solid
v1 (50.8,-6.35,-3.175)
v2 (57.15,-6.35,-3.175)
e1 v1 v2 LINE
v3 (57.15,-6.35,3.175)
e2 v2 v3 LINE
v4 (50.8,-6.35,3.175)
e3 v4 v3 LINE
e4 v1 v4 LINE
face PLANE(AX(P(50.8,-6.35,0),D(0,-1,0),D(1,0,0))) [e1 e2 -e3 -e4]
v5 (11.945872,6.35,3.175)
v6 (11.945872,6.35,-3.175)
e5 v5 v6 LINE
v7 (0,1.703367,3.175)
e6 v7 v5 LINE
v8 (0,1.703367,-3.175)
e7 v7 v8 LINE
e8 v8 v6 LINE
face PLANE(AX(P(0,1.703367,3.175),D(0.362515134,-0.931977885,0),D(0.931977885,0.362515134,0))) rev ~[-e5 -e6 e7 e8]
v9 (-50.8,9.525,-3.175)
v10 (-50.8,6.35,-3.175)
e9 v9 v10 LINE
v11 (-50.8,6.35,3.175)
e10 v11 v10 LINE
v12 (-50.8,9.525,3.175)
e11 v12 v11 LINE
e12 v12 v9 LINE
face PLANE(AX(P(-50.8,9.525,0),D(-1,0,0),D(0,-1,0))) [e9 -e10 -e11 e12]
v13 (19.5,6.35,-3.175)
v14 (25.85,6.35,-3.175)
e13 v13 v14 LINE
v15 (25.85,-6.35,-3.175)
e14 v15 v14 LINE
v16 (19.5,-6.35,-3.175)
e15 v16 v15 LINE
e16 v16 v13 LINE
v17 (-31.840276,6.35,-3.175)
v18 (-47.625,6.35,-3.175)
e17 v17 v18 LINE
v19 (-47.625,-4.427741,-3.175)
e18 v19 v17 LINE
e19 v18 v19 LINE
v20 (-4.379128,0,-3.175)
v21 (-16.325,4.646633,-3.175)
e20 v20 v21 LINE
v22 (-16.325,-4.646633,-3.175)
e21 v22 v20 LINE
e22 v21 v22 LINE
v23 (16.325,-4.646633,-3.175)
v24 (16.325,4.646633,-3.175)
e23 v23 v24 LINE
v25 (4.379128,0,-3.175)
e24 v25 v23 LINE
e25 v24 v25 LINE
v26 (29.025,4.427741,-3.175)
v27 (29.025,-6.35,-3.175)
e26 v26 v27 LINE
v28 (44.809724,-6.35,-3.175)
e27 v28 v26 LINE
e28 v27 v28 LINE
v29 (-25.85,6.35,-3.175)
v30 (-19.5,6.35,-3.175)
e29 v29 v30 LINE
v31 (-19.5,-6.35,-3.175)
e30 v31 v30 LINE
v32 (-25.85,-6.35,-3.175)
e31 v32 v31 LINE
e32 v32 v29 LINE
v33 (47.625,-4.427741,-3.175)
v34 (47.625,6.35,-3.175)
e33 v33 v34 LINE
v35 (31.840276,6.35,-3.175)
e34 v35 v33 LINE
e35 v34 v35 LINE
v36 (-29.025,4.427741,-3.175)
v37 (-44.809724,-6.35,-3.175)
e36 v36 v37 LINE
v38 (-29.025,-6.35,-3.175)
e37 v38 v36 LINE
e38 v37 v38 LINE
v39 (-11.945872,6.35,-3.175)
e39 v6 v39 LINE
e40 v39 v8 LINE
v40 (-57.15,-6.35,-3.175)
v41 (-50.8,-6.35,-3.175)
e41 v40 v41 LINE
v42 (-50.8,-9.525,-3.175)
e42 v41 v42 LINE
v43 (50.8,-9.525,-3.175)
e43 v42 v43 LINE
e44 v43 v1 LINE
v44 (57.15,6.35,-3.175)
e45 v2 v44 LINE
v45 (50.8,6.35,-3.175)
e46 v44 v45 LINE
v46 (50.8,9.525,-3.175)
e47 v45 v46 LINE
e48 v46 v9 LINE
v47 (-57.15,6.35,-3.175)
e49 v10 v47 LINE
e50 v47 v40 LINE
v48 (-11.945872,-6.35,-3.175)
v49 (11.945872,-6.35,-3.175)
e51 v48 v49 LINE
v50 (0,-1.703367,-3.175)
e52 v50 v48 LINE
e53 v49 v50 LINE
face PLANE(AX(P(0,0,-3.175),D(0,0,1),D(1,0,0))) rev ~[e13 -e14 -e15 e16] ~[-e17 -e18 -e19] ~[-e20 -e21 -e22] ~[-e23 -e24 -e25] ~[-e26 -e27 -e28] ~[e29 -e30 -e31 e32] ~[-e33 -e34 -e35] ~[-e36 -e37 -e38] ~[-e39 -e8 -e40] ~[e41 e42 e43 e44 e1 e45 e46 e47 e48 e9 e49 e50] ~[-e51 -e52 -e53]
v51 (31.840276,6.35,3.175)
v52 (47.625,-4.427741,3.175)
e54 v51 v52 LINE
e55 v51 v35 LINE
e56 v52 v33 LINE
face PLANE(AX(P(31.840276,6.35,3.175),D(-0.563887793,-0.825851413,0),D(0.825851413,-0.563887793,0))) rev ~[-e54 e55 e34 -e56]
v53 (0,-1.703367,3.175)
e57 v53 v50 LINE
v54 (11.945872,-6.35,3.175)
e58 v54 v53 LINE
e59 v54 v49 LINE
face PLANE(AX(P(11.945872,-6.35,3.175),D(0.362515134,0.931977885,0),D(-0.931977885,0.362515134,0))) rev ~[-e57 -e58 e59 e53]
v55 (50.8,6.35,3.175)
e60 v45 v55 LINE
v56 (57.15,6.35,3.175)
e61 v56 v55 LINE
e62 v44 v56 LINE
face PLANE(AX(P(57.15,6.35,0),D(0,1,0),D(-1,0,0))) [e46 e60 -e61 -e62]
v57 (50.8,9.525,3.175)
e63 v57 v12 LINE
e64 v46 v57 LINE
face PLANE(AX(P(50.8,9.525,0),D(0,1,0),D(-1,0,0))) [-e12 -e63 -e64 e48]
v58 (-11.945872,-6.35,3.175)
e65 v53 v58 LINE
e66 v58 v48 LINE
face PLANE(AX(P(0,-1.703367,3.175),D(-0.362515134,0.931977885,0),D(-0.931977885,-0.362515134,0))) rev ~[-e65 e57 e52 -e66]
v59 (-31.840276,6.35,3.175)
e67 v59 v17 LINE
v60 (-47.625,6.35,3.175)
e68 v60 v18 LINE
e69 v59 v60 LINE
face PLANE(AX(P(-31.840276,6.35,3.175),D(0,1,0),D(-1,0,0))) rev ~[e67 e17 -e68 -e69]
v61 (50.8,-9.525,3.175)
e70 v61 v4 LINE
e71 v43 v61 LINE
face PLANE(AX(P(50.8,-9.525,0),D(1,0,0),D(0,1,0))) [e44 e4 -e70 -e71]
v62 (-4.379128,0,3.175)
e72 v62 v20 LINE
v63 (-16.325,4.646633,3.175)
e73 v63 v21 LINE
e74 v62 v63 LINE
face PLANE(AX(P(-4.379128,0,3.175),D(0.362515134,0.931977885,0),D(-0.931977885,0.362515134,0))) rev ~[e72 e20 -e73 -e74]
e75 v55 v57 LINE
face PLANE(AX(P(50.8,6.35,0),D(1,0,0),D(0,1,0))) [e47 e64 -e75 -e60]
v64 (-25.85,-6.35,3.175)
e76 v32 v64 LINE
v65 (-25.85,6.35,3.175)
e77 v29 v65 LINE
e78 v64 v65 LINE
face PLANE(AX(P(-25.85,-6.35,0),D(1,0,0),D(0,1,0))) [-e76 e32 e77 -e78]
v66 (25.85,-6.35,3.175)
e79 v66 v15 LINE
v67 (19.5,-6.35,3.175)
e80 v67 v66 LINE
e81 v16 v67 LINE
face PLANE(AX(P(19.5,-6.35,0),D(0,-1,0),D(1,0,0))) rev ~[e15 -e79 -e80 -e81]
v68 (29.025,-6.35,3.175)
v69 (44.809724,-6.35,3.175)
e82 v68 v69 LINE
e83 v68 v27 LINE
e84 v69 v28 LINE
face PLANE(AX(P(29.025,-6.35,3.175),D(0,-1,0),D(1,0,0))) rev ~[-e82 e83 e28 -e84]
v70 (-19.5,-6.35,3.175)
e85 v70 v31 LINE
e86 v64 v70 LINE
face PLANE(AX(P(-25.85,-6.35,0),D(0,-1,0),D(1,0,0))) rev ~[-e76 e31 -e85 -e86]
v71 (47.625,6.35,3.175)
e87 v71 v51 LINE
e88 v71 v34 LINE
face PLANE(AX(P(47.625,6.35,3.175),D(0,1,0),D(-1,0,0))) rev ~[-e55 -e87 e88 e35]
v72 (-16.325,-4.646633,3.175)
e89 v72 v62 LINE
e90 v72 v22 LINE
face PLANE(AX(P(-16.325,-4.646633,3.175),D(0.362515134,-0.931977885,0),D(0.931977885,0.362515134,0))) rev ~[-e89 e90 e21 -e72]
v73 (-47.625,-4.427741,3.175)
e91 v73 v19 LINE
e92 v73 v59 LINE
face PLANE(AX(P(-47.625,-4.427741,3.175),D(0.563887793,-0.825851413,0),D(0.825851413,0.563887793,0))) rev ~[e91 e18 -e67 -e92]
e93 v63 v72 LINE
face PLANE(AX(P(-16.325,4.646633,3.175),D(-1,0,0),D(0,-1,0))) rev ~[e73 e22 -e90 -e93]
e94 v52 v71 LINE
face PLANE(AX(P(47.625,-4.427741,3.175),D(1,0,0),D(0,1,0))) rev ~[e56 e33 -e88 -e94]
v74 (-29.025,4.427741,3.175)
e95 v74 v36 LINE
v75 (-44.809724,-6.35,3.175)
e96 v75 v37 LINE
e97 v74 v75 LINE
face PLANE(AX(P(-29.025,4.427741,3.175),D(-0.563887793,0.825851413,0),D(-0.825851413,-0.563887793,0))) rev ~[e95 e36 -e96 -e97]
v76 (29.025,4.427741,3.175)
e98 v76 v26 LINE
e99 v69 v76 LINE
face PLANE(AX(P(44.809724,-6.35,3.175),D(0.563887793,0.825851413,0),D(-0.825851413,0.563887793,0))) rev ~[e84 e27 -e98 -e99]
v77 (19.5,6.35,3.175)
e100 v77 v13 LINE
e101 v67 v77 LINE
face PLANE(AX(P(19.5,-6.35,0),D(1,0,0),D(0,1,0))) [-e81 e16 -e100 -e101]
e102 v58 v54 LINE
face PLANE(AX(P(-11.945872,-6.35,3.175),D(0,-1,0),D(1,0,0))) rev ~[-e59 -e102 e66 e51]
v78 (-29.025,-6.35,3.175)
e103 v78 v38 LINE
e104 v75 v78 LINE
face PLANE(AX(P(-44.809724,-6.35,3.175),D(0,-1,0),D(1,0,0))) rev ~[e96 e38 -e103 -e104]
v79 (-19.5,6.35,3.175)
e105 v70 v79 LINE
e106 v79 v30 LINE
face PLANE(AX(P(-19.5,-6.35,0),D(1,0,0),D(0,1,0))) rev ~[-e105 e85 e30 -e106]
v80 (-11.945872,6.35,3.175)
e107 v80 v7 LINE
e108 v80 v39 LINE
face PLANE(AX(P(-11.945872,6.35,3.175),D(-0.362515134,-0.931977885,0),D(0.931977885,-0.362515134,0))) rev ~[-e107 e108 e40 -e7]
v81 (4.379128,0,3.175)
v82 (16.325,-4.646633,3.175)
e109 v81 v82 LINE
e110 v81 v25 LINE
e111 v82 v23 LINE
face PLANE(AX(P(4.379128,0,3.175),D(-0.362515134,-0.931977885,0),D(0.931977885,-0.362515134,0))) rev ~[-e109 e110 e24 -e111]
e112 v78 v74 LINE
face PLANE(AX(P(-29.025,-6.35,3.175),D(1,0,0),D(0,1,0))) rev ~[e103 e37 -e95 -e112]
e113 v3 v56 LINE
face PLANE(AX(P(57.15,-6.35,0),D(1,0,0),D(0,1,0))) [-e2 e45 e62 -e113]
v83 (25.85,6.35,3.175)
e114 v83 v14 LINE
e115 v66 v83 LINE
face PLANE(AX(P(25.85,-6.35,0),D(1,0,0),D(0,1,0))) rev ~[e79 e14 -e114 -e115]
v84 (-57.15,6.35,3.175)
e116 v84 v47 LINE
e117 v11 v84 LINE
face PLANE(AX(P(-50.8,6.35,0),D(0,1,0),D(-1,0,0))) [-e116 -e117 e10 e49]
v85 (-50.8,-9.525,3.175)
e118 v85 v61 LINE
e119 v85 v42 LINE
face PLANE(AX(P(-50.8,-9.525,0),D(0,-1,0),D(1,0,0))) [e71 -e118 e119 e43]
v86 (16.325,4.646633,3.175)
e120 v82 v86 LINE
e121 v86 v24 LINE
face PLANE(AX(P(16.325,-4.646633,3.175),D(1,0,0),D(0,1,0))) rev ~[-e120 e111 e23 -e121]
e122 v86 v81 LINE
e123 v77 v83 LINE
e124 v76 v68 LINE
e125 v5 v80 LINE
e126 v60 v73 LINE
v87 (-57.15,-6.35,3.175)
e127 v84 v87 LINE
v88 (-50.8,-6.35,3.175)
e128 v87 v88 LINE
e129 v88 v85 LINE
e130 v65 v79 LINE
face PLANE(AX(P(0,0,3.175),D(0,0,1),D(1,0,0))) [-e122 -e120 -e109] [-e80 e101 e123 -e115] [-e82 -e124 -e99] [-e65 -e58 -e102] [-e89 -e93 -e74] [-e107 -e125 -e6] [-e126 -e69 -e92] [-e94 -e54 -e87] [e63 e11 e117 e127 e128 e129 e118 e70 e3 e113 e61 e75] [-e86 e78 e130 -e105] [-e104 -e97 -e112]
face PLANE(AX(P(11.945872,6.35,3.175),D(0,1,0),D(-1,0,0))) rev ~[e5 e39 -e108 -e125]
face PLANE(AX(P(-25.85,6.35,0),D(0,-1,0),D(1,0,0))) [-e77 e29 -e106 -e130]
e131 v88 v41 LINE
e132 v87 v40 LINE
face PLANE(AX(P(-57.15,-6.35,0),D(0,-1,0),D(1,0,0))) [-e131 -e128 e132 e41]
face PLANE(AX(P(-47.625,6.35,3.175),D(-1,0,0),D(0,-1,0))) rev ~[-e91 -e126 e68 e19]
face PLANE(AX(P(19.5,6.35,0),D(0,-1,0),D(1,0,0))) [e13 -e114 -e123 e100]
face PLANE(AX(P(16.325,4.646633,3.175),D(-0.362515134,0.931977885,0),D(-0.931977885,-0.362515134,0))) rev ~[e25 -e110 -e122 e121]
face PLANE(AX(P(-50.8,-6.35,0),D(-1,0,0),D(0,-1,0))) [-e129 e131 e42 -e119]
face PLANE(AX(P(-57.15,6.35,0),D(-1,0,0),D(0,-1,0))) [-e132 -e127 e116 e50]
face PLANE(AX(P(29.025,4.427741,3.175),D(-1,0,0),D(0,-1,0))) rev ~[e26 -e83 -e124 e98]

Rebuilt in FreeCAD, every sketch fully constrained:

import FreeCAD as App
import Part
import Sketcher
from FreeCAD import Vector
Q = App.Units.Quantity


def add_polygon(sketch, points):
    """Adds a closed chain of lines whose ends are joined by coincident constraints."""
    first, n = sketch.GeometryCount, len(points)
    for a, b in zip(points, points[1:] + points[:1]):
        sketch.addGeometry(Part.LineSegment(App.Vector(*a, 0), App.Vector(*b, 0)), False)
    for i in range(n):
        sketch.addConstraint(Sketcher.Constraint("Coincident", first + i, 2, first + (i + 1) % n, 1))

doc = App.newDocument("Part")
body = doc.addObject("PartDesign::Body", "Body")

# Sketch on XY plane
sketch1 = body.newObject("Sketcher::SketchObject", "Sketch")
sketch1.AttachmentSupport = (doc.getObject("XY_Plane"), [""])
sketch1.MapMode = "FlatFace"
add_polygon(sketch1, [(-50.8, -9.525), (50.8, -9.525), (50.8, -6.35), (57.15, -6.35), (57.15, 6.35), (50.8, 6.35), (50.8, 9.525), (-50.8, 9.525), (-50.8, 6.35), (-57.15, 6.35), (-57.15, -6.35), (-50.8, -6.35)])  # lines 0-11
add_polygon(sketch1, [(-19.5, -6.35), (-25.85, -6.35), (-25.85, 6.35), (-19.5, 6.35)])  # lines 12-15
add_polygon(sketch1, [(25.85, -6.35), (19.5, -6.35), (19.5, 6.35), (25.85, 6.35)])  # lines 16-19
sketch1.addConstraint([
    Sketcher.Constraint("Horizontal", 0),
    Sketcher.Constraint("Vertical", 1),
    Sketcher.Constraint("Horizontal", 2),
    Sketcher.Constraint("Vertical", 3),
    Sketcher.Constraint("Horizontal", 4),
    Sketcher.Constraint("Vertical", 5),
    Sketcher.Constraint("Horizontal", 6),
    Sketcher.Constraint("Vertical", 7),
    Sketcher.Constraint("Horizontal", 8),
    Sketcher.Constraint("Vertical", 9),
    Sketcher.Constraint("Horizontal", 10),
    Sketcher.Constraint("Vertical", 11),
    Sketcher.Constraint("Horizontal", 12),
    Sketcher.Constraint("Vertical", 13),
    Sketcher.Constraint("Horizontal", 14),
    Sketcher.Constraint("Vertical", 15),
    Sketcher.Constraint("Horizontal", 16),
    Sketcher.Constraint("Vertical", 17),
    Sketcher.Constraint("Horizontal", 18),
    Sketcher.Constraint("Vertical", 19),
    Sketcher.Constraint("Symmetric", 0, 2, 6, 2, -1, 1),
    Sketcher.Constraint("Symmetric", 2, 2, 8, 2, -1, 1),
    Sketcher.Constraint("Symmetric", 4, 2, 10, 2, -1, 1),
    Sketcher.Constraint("Symmetric", 14, 2, 16, 2, -1, 1),
    Sketcher.Constraint("Symmetric", 12, 2, 18, 2, -1, 1),
    Sketcher.Constraint("Symmetric", 4, 2, 7, 2, -2),
    Sketcher.Constraint("Horizontal", 10, 2, 12, 2),
    Sketcher.Constraint("Horizontal", 8, 2, 13, 2),
    Sketcher.Constraint("Equal", 10, 12),
    Sketcher.Constraint("DistanceX", 0, 1, 0, 2, Q("4 in")),
    Sketcher.Constraint("DistanceY", 3, 1, 3, 2, Q("0.5 in")),
    Sketcher.Constraint("DistanceX", 2, 1, 2, 2, Q("0.25 in")),
    Sketcher.Constraint("DistanceY", 1, 1, 1, 2, Q("0.125 in")),
    Sketcher.Constraint("DistanceX", 12, 2, -1, 1, 25.85),
])
pad1 = body.newObject("PartDesign::Pad", "Pad")
pad1.Profile = sketch1
pad1.Length = Q("0.25 in")
pad1.Midplane = True

# Sketch on XY plane
sketch2 = body.newObject("Sketcher::SketchObject", "Sketch001")
sketch2.AttachmentSupport = (doc.getObject("XY_Plane"), [""])
sketch2.MapMode = "FlatFace"
sketch2.AttachmentOffset = App.Placement(Vector(0, 0, 0.125 * 25.4), App.Rotation())
add_polygon(sketch2, [(-31.840276, 6.35), (-47.625, 6.35), (-47.625, -4.427741)])  # lines 0-2
add_polygon(sketch2, [(-29.025, 4.427741), (-44.809724, -6.35), (-29.025, -6.35)])  # lines 3-5
add_polygon(sketch2, [(-16.325, -4.646633), (-4.379128, 0), (-16.325, 4.646633)])  # lines 6-8
add_polygon(sketch2, [(-11.945872, 6.35), (0, 1.703367), (11.945872, 6.35)])  # lines 9-11
add_polygon(sketch2, [(4.379128, 0), (16.325, -4.646633), (16.325, 4.646633)])  # lines 12-14
add_polygon(sketch2, [(-11.945872, -6.35), (11.945872, -6.35), (0, -1.703367)])  # lines 15-17
add_polygon(sketch2, [(44.809724, -6.35), (29.025, 4.427741), (29.025, -6.35)])  # lines 18-20
add_polygon(sketch2, [(47.625, 6.35), (31.840276, 6.35), (47.625, -4.427741)])  # lines 21-23
sketch2.addConstraint([
    Sketcher.Constraint("Horizontal", 0),
    Sketcher.Constraint("Vertical", 1),
    Sketcher.Constraint("Horizontal", 4),
    Sketcher.Constraint("Vertical", 5),
    Sketcher.Constraint("Vertical", 8),
    Sketcher.Constraint("Horizontal", 11),
    Sketcher.Constraint("Vertical", 13),
    Sketcher.Constraint("Horizontal", 15),
    Sketcher.Constraint("Vertical", 19),
    Sketcher.Constraint("Horizontal", 20),
    Sketcher.Constraint("Horizontal", 21),
    Sketcher.Constraint("Vertical", 23),
    Sketcher.Constraint("Symmetric", 7, 2, 12, 2, -1, 1),
    Sketcher.Constraint("Symmetric", 6, 2, 14, 2, -1, 1),
    Sketcher.Constraint("Symmetric", 11, 2, 15, 2, -1, 1),
    Sketcher.Constraint("Symmetric", 9, 2, 16, 2, -1, 1),
    Sketcher.Constraint("Symmetric", 5, 2, 18, 2, -2),
    Sketcher.Constraint("Symmetric", 3, 2, 20, 2, -2),
    Sketcher.Constraint("Symmetric", 2, 2, 21, 2, -2),
    Sketcher.Constraint("Symmetric", 1, 2, 22, 2, -2),
    Sketcher.Constraint("PointOnObject", 6, 2, -1),
    Sketcher.Constraint("PointOnObject", 9, 2, -2),
    Sketcher.Constraint("Parallel", 2, 3),
    Sketcher.Constraint("Parallel", 7, 9),
    Sketcher.Constraint("Parallel", 6, 10),
    Sketcher.Constraint("Parallel", 10, 14),
    Sketcher.Constraint("Parallel", 14, 17),
    Sketcher.Constraint("Horizontal", 2, 2, 10, 2),
    Sketcher.Constraint("Horizontal", 8, 2, 12, 2),
    Sketcher.Constraint("Horizontal", 4, 2, 15, 2),
    Sketcher.Constraint("Equal", 0, 4),
    Sketcher.Constraint("Equal", 7, 9),
    Sketcher.Constraint("DistanceY", 3, 2, 0, 2, Q("0.5 in")),
    Sketcher.Constraint("DistanceX", 5, 2, 7, 2, Q("0.5 in")),
    Sketcher.Constraint("DistanceX", 0, 2, -1, 1, Q("1.875 in")),
    Sketcher.Constraint("DistanceY", 1, 2, 1, 1, 10.777741),
    Sketcher.Constraint("DistanceX", 4, 2, -1, 1, 29.025),
    Sketcher.Constraint("DistanceX", 0, 2, 0, 1, 15.784724),
    Sketcher.Constraint("DistanceX", 11, 2, 11, 1, 23.891745),
    Sketcher.Constraint("DistanceY", 8, 2, 8, 1, 9.293267),
])
pocket1 = body.newObject("PartDesign::Pocket", "Pocket")
pocket1.Profile = sketch2
pocket1.Type = "ThroughAll"

doc.recompute()
